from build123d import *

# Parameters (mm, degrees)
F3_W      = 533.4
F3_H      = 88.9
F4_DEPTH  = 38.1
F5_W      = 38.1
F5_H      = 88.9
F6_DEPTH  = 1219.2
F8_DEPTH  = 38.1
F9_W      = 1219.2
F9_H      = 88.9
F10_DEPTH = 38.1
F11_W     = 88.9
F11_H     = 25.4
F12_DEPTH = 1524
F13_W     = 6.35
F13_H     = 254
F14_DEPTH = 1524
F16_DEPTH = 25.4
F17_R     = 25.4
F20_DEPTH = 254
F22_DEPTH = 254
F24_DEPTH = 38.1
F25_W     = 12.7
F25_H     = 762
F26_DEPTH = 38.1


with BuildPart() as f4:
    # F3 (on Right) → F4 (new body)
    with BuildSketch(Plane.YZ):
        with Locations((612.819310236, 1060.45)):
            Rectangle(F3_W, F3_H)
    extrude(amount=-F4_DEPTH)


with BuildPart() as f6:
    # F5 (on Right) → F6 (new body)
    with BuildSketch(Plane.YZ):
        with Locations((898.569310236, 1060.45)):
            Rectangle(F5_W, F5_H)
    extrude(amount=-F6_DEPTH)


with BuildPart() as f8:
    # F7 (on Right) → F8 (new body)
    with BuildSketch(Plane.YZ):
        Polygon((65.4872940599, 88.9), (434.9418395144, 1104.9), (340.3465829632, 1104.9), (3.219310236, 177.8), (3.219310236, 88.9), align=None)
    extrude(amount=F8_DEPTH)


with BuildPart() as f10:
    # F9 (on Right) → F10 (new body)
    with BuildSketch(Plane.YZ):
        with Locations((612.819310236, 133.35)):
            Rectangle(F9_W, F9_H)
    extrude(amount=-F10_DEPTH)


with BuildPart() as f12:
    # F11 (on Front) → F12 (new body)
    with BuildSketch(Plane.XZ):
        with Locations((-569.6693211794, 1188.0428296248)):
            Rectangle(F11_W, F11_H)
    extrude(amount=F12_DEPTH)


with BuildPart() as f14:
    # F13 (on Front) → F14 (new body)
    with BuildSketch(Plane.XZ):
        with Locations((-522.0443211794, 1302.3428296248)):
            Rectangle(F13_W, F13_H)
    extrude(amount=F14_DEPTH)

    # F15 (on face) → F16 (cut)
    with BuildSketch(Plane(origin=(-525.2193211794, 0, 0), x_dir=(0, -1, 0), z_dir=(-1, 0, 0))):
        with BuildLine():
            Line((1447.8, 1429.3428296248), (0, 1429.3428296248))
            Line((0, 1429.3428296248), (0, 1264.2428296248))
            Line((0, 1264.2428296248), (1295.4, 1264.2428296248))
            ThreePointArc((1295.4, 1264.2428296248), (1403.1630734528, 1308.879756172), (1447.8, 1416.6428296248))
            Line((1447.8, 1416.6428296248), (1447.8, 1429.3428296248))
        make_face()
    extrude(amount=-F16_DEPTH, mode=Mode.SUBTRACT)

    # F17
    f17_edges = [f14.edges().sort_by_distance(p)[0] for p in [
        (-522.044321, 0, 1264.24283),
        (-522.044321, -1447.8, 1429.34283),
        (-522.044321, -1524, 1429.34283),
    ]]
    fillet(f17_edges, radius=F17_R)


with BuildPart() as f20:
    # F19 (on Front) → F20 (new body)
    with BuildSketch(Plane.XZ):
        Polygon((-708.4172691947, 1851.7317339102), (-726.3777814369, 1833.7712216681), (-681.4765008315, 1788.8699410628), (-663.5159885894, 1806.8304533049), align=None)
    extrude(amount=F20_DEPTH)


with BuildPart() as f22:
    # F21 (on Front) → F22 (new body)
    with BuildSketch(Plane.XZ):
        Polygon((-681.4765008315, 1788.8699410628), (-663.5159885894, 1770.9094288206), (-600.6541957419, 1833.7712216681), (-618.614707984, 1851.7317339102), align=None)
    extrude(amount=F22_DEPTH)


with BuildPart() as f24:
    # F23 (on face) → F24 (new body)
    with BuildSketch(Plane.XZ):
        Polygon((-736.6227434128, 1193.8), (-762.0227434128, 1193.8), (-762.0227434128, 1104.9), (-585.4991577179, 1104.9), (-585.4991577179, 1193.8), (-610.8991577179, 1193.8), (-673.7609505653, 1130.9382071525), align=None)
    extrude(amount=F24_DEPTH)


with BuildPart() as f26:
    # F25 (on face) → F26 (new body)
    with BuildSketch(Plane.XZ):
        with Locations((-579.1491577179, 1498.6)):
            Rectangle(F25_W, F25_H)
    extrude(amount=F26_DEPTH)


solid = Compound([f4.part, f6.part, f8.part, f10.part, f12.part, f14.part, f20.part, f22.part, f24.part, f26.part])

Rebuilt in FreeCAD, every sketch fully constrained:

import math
import FreeCAD as App
import Part
import Sketcher
from FreeCAD import Vector
Q = App.Units.Quantity


def edges_at(feature, points):
    """Names of the edges that pass closest to the given points."""
    edges = feature.Shape.Edges
    near = lambda p: min(range(len(edges)), key=lambda i: edges[i].distToShape(Part.Vertex(*p))[0])
    return sorted({f"Edge{near(p) + 1}" for p in points})

doc = App.newDocument("Part")
body = doc.addObject("PartDesign::Body", "Body")

# Sketch on YZ plane
sketch1 = body.newObject("Sketcher::SketchObject", "Sketch")
sketch1.AttachmentSupport = (doc.getObject("YZ_Plane"), [""])
sketch1.MapMode = "FlatFace"
sketch1.addGeometry(Part.LineSegment(Vector(346, 1105, 0), Vector(346, 1016, 0)), False)
sketch1.addGeometry(Part.LineSegment(Vector(346, 1016, 0), Vector(880, 1016, 0)), False)
sketch1.addGeometry(Part.LineSegment(Vector(880, 1016, 0), Vector(880, 1105, 0)), False)
sketch1.addGeometry(Part.LineSegment(Vector(880, 1105, 0), Vector(346, 1105, 0)), False)
sketch1.addConstraint(Sketcher.Constraint("Coincident", 0, 2, 1, 1))
sketch1.addConstraint(Sketcher.Constraint("Coincident", 1, 2, 2, 1))
sketch1.addConstraint(Sketcher.Constraint("Coincident", 2, 2, 3, 1))
sketch1.addConstraint(Sketcher.Constraint("Coincident", 3, 2, 0, 1))
sketch1.addConstraint(Sketcher.Constraint("Vertical", 0))
sketch1.addConstraint(Sketcher.Constraint("Horizontal", 1))
sketch1.addConstraint(Sketcher.Constraint("Vertical", 2))
sketch1.addConstraint(Sketcher.Constraint("Horizontal", 3))
sketch1.addConstraint(Sketcher.Constraint("DistanceX", 1, 1, 1, 2, Q("21 in")))
sketch1.addConstraint(Sketcher.Constraint("DistanceY", 0, 2, 0, 1, Q("3.5 in")))
sketch1.addConstraint(Sketcher.Constraint("DistanceY", -1, 1, 0, 2, Q("40 in")))
sketch1.addConstraint(Sketcher.Constraint("DistanceX", -1, 1, 0, 2, 346.11931))
pad1 = body.newObject("PartDesign::Pad", "Pad")
pad1.Profile = sketch1
pad1.Length = Q("1.5 in")
pad1.Reversed = True
body2 = doc.addObject("PartDesign::Body", "Body001")

# Sketch on YZ plane
sketch2 = body2.newObject("Sketcher::SketchObject", "Sketch001")
sketch2.AttachmentSupport = (doc.getObject("YZ_Plane001"), [""])
sketch2.MapMode = "FlatFace"
sketch2.addGeometry(Part.LineSegment(Vector(880, 1105, 0), Vector(880, 1016, 0)), False)
sketch2.addGeometry(Part.LineSegment(Vector(880, 1016, 0), Vector(918, 1016, 0)), False)
sketch2.addGeometry(Part.LineSegment(Vector(918, 1016, 0), Vector(918, 1105, 0)), False)
sketch2.addGeometry(Part.LineSegment(Vector(918, 1105, 0), Vector(880, 1105, 0)), False)
sketch2.addConstraint(Sketcher.Constraint("Coincident", 0, 2, 1, 1))
sketch2.addConstraint(Sketcher.Constraint("Coincident", 1, 2, 2, 1))
sketch2.addConstraint(Sketcher.Constraint("Coincident", 2, 2, 3, 1))
sketch2.addConstraint(Sketcher.Constraint("Coincident", 3, 2, 0, 1))
sketch2.addConstraint(Sketcher.Constraint("Vertical", 0))
sketch2.addConstraint(Sketcher.Constraint("Horizontal", 1))
sketch2.addConstraint(Sketcher.Constraint("Vertical", 2))
sketch2.addConstraint(Sketcher.Constraint("Horizontal", 3))
sketch2.addConstraint(Sketcher.Constraint("DistanceX", 1, 1, 1, 2, Q("1.5 in")))
sketch2.addConstraint(Sketcher.Constraint("DistanceY", 0, 2, 0, 1, Q("3.5 in")))
sketch2.addConstraint(Sketcher.Constraint("DistanceY", -1, 1, 0, 2, Q("40 in")))
sketch2.addConstraint(Sketcher.Constraint("DistanceX", -1, 1, 0, 2, 879.51931))
pad2 = body2.newObject("PartDesign::Pad", "Pad001")
pad2.Profile = sketch2
pad2.Length = Q("48 in")
pad2.Reversed = True
body3 = doc.addObject("PartDesign::Body", "Body002")

# Sketch on YZ plane
sketch3 = body3.newObject("Sketcher::SketchObject", "Sketch002")
sketch3.AttachmentSupport = (doc.getObject("YZ_Plane002"), [""])
sketch3.MapMode = "FlatFace"
sketch3.addGeometry(Part.LineSegment(Vector(65, 89, 0), Vector(435, 1105, 0)), False)
sketch3.addGeometry(Part.LineSegment(Vector(435, 1105, 0), Vector(340, 1105, 0)), False)
sketch3.addGeometry(Part.LineSegment(Vector(340, 1105, 0), Vector(3, 178, 0)), False)
sketch3.addGeometry(Part.LineSegment(Vector(3, 178, 0), Vector(3, 89, 0)), False)
sketch3.addGeometry(Part.LineSegment(Vector(3, 89, 0), Vector(65, 89, 0)), False)
sketch3.addConstraint(Sketcher.Constraint("Coincident", 0, 2, 1, 1))
sketch3.addConstraint(Sketcher.Constraint("Coincident", 1, 2, 2, 1))
sketch3.addConstraint(Sketcher.Constraint("Coincident", 2, 2, 3, 1))
sketch3.addConstraint(Sketcher.Constraint("Coincident", 3, 2, 4, 1))
sketch3.addConstraint(Sketcher.Constraint("Coincident", 4, 2, 0, 1))
sketch3.addConstraint(Sketcher.Constraint("Horizontal", 1))
sketch3.addConstraint(Sketcher.Constraint("Vertical", 3))
sketch3.addConstraint(Sketcher.Constraint("Horizontal", 4))
sketch3.addConstraint(Sketcher.Constraint("Parallel", 0, 2))
sketch3.addConstraint(Sketcher.Constraint("DistanceY", 3, 2, 3, 1, Q("3.5 in")))
sketch3.addConstraint(Sketcher.Constraint("DistanceY", -1, 1, 2, 2, Q("7 in")))
sketch3.addConstraint(Sketcher.Constraint("DistanceY", 3, 2, 1, 2, Q("40 in")))
sketch3.addConstraint(Sketcher.Constraint("Distance", 2, 986.49339))
sketch3.addConstraint(Sketcher.Constraint("DistanceX", 1, 2, 1, 1, 94.595257))
sketch3.addConstraint(Sketcher.Constraint("DistanceX", -1, 1, 0, 2, 434.94184))
pad3 = body3.newObject("PartDesign::Pad", "Pad002")
pad3.Profile = sketch3
pad3.Length = Q("1.5 in")
body4 = doc.addObject("PartDesign::Body", "Body003")

# Sketch on YZ plane
sketch4 = body4.newObject("Sketcher::SketchObject", "Sketch003")
sketch4.AttachmentSupport = (doc.getObject("YZ_Plane003"), [""])
sketch4.MapMode = "FlatFace"
sketch4.addGeometry(Part.LineSegment(Vector(3, 178, 0), Vector(3, 89, 0)), False)
sketch4.addGeometry(Part.LineSegment(Vector(3, 89, 0), Vector(1222, 89, 0)), False)
sketch4.addGeometry(Part.LineSegment(Vector(1222, 89, 0), Vector(1222, 178, 0)), False)
sketch4.addGeometry(Part.LineSegment(Vector(1222, 178, 0), Vector(3, 178, 0)), False)
sketch4.addConstraint(Sketcher.Constraint("Coincident", 0, 2, 1, 1))
sketch4.addConstraint(Sketcher.Constraint("Coincident", 1, 2, 2, 1))
sketch4.addConstraint(Sketcher.Constraint("Coincident", 2, 2, 3, 1))
sketch4.addConstraint(Sketcher.Constraint("Coincident", 3, 2, 0, 1))
sketch4.addConstraint(Sketcher.Constraint("Vertical", 0))
sketch4.addConstraint(Sketcher.Constraint("Horizontal", 1))
sketch4.addConstraint(Sketcher.Constraint("Vertical", 2))
sketch4.addConstraint(Sketcher.Constraint("Horizontal", 3))
sketch4.addConstraint(Sketcher.Constraint("DistanceX", 1, 1, 1, 2, Q("48 in")))
sketch4.addConstraint(Sketcher.Constraint("DistanceY", 0, 2, 0, 1, Q("3.5 in")))
sketch4.addConstraint(Sketcher.Constraint("DistanceY", -1, 1, 2, 2, Q("7 in")))
sketch4.addConstraint(Sketcher.Constraint("DistanceX", -1, 1, 0, 2, 3.21931))
pad4 = body4.newObject("PartDesign::Pad", "Pad003")
pad4.Profile = sketch4
pad4.Length = Q("1.5 in")
pad4.Reversed = True
body5 = doc.addObject("PartDesign::Body", "Body004")

# Sketch on XZ plane
sketch5 = body5.newObject("Sketcher::SketchObject", "Sketch004")
sketch5.AttachmentSupport = (doc.getObject("XZ_Plane004"), [""])
sketch5.MapMode = "FlatFace"
sketch5.addGeometry(Part.LineSegment(Vector(-614, 1201, 0), Vector(-614, 1175, 0)), False)
sketch5.addGeometry(Part.LineSegment(Vector(-614, 1175, 0), Vector(-525, 1175, 0)), False)
sketch5.addGeometry(Part.LineSegment(Vector(-525, 1175, 0), Vector(-525, 1201, 0)), False)
sketch5.addGeometry(Part.LineSegment(Vector(-525, 1201, 0), Vector(-614, 1201, 0)), False)
sketch5.addConstraint(Sketcher.Constraint("Coincident", 0, 2, 1, 1))
sketch5.addConstraint(Sketcher.Constraint("Coincident", 1, 2, 2, 1))
sketch5.addConstraint(Sketcher.Constraint("Coincident", 2, 2, 3, 1))
sketch5.addConstraint(Sketcher.Constraint("Coincident", 3, 2, 0, 1))
sketch5.addConstraint(Sketcher.Constraint("Vertical", 0))
sketch5.addConstraint(Sketcher.Constraint("Horizontal", 1))
sketch5.addConstraint(Sketcher.Constraint("Vertical", 2))
sketch5.addConstraint(Sketcher.Constraint("Horizontal", 3))
sketch5.addConstraint(Sketcher.Constraint("DistanceY", 0, 2, 0, 1, Q("1 in")))
sketch5.addConstraint(Sketcher.Constraint("DistanceX", 1, 1, 1, 2, Q("3.5 in")))
sketch5.addConstraint(Sketcher.Constraint("DistanceX", 0, 2, -1, 1, 614.119321))
sketch5.addConstraint(Sketcher.Constraint("DistanceY", -1, 1, 0, 2, 1175.34283))
pad5 = body5.newObject("PartDesign::Pad", "Pad004")
pad5.Profile = sketch5
pad5.Length = Q("60 in")
body6 = doc.addObject("PartDesign::Body", "Body005")

# Sketch on XZ plane
sketch6 = body6.newObject("Sketcher::SketchObject", "Sketch005")
sketch6.AttachmentSupport = (doc.getObject("XZ_Plane005"), [""])
sketch6.MapMode = "FlatFace"
sketch6.addGeometry(Part.LineSegment(Vector(-525, 1429, 0), Vector(-525, 1175, 0)), False)
sketch6.addGeometry(Part.LineSegment(Vector(-525, 1175, 0), Vector(-519, 1175, 0)), False)
sketch6.addGeometry(Part.LineSegment(Vector(-519, 1175, 0), Vector(-519, 1429, 0)), False)
sketch6.addGeometry(Part.LineSegment(Vector(-519, 1429, 0), Vector(-525, 1429, 0)), False)
sketch6.addConstraint(Sketcher.Constraint("Coincident", 0, 2, 1, 1))
sketch6.addConstraint(Sketcher.Constraint("Coincident", 1, 2, 2, 1))
sketch6.addConstraint(Sketcher.Constraint("Coincident", 2, 2, 3, 1))
sketch6.addConstraint(Sketcher.Constraint("Coincident", 3, 2, 0, 1))
sketch6.addConstraint(Sketcher.Constraint("Vertical", 0))
sketch6.addConstraint(Sketcher.Constraint("Horizontal", 1))
sketch6.addConstraint(Sketcher.Constraint("Vertical", 2))
sketch6.addConstraint(Sketcher.Constraint("Horizontal", 3))
sketch6.addConstraint(Sketcher.Constraint("DistanceY", 0, 2, 0, 1, Q("10 in")))
sketch6.addConstraint(Sketcher.Constraint("DistanceX", 1, 1, 1, 2, Q("0.25 in")))
sketch6.addConstraint(Sketcher.Constraint("DistanceX", 0, 2, -1, 1, 525.219321))
sketch6.addConstraint(Sketcher.Constraint("DistanceY", -1, 1, 0, 2, 1175.34283))
pad6 = body6.newObject("PartDesign::Pad", "Pad005")
pad6.Profile = sketch6
pad6.Length = Q("60 in")

# Sketch on YZ plane
sketch7 = body6.newObject("Sketcher::SketchObject", "Sketch006")
sketch7.AttachmentSupport = (doc.getObject("YZ_Plane005"), [""])
sketch7.MapMode = "FlatFace"
sketch7.AttachmentOffset = App.Placement(Vector(0, 0, -525.219321), App.Rotation())
sketch7.addGeometry(Part.LineSegment(Vector(-1448, 1429, 0), Vector(0, 1429, 0)), False)
sketch7.addGeometry(Part.LineSegment(Vector(0, 1429, 0), Vector(0, 1264, 0)), False)
sketch7.addGeometry(Part.LineSegment(Vector(0, 1264, 0), Vector(-1295, 1264, 0)), False)
sketch7.addGeometry(Part.ArcOfCircle(Part.Circle(Vector(-1295, 1417, 0), Vector(0, 0, 1), 152), math.radians(180), math.radians(270)), False)
sketch7.addGeometry(Part.LineSegment(Vector(-1448, 1417, 0), Vector(-1448, 1429, 0)), False)
sketch7.addConstraint(Sketcher.Constraint("Coincident", 0, 2, 1, 1))
sketch7.addConstraint(Sketcher.Constraint("Coincident", 1, 2, 2, 1))
sketch7.addConstraint(Sketcher.Constraint("Tangent", 2, 2, 3, 2))
sketch7.addConstraint(Sketcher.Constraint("Tangent", 3, 1, 4, 1))
sketch7.addConstraint(Sketcher.Constraint("Coincident", 4, 2, 0, 1))
sketch7.addConstraint(Sketcher.Constraint("Horizontal", 0))
sketch7.addConstraint(Sketcher.Constraint("Vertical", 1))
sketch7.addConstraint(Sketcher.Constraint("Horizontal", 2))
sketch7.addConstraint(Sketcher.Constraint("Vertical", 4))
sketch7.addConstraint(Sketcher.Constraint("PointOnObject", 0, 2, -2))
sketch7.addConstraint(Sketcher.Constraint("Radius", 3, Q("6 in")))
sketch7.addConstraint(Sketcher.Constraint("DistanceX", 0, 1, 0, 2, Q("57 in")))
sketch7.addConstraint(Sketcher.Constraint("DistanceY", 1, 2, 1, 1, Q("6.5 in")))
sketch7.addConstraint(Sketcher.Constraint("DistanceY", -1, 1, 3, 3, 1416.64283))
pocket1 = body6.newObject("PartDesign::Pocket", "Pocket")
pocket1.Profile = sketch7
pocket1.Length = Q("1 in")
pocket1.Reversed = True
doc.recompute()

fillet = body6.newObject("PartDesign::Fillet", "Fillet")
fillet.Base = (pocket1, edges_at(pocket1, [(-522.044, 0, 1264.243), (-522.044, -1447.8, 1429.343), (-522.044, -1524, 1429.343)]))
fillet.Radius = Q("1 in")
body7 = doc.addObject("PartDesign::Body", "Body006")

# Sketch on XZ plane
sketch8 = body7.newObject("Sketcher::SketchObject", "Sketch007")
sketch8.AttachmentSupport = (doc.getObject("XZ_Plane006"), [""])
sketch8.MapMode = "FlatFace"
sketch8.addGeometry(Part.LineSegment(Vector(-708, 1852, 0), Vector(-726, 1834, 0)), False)
sketch8.addGeometry(Part.LineSegment(Vector(-726, 1834, 0), Vector(-681, 1789, 0)), False)
sketch8.addGeometry(Part.LineSegment(Vector(-681, 1789, 0), Vector(-664, 1807, 0)), False)
sketch8.addGeometry(Part.LineSegment(Vector(-664, 1807, 0), Vector(-708, 1852, 0)), False)
sketch8.addConstraint(Sketcher.Constraint("Coincident", 0, 2, 1, 1))
sketch8.addConstraint(Sketcher.Constraint("Coincident", 1, 2, 2, 1))
sketch8.addConstraint(Sketcher.Constraint("Coincident", 2, 2, 3, 1))
sketch8.addConstraint(Sketcher.Constraint("Coincident", 3, 2, 0, 1))
sketch8.addConstraint(Sketcher.Constraint("Perpendicular", 0, 1))
sketch8.addConstraint(Sketcher.Constraint("Perpendicular", 1, 2))
sketch8.addConstraint(Sketcher.Constraint("Perpendicular", 2, 3))
sketch8.addConstraint(Sketcher.Constraint("Distance", 0, Q("1 in")))
sketch8.addConstraint(Sketcher.Constraint("Angle", 0, Q("-135 deg")))
sketch8.addConstraint(Sketcher.Constraint("Distance", 1, Q("2.5 in")))
sketch8.addConstraint(Sketcher.Constraint("DistanceX", 1, 2, -1, 1, 681.476501))
sketch8.addConstraint(Sketcher.Constraint("DistanceY", -1, 1, 0, 2, 1833.771222))
pad7 = body7.newObject("PartDesign::Pad", "Pad006")
pad7.Profile = sketch8
pad7.Length = Q("10 in")
body8 = doc.addObject("PartDesign::Body", "Body007")

# Sketch on XZ plane
sketch9 = body8.newObject("Sketcher::SketchObject", "Sketch008")
sketch9.AttachmentSupport = (doc.getObject("XZ_Plane007"), [""])
sketch9.MapMode = "FlatFace"
sketch9.addGeometry(Part.LineSegment(Vector(-681, 1789, 0), Vector(-664, 1771, 0)), False)
sketch9.addGeometry(Part.LineSegment(Vector(-664, 1771, 0), Vector(-601, 1834, 0)), False)
sketch9.addGeometry(Part.LineSegment(Vector(-601, 1834, 0), Vector(-619, 1852, 0)), False)
sketch9.addGeometry(Part.LineSegment(Vector(-619, 1852, 0), Vector(-681, 1789, 0)), False)
sketch9.addConstraint(Sketcher.Constraint("Coincident", 0, 2, 1, 1))
sketch9.addConstraint(Sketcher.Constraint("Coincident", 1, 2, 2, 1))
sketch9.addConstraint(Sketcher.Constraint("Coincident", 2, 2, 3, 1))
sketch9.addConstraint(Sketcher.Constraint("Coincident", 3, 2, 0, 1))
sketch9.addConstraint(Sketcher.Constraint("Perpendicular", 0, 1))
sketch9.addConstraint(Sketcher.Constraint("Perpendicular", 1, 2))
sketch9.addConstraint(Sketcher.Constraint("Perpendicular", 2, 3))
sketch9.addConstraint(Sketcher.Constraint("Distance", 0, Q("1 in")))
sketch9.addConstraint(Sketcher.Constraint("Angle", 0, Q("-45 deg")))
sketch9.addConstraint(Sketcher.Constraint("Distance", 1, Q("3.5 in")))
sketch9.addConstraint(Sketcher.Constraint("DistanceX", 3, 2, -1, 1, 681.476501))
sketch9.addConstraint(Sketcher.Constraint("DistanceY", -1, 1, 0, 2, 1770.909429))
pad8 = body8.newObject("PartDesign::Pad", "Pad007")
pad8.Profile = sketch9
pad8.Length = Q("10 in")
body9 = doc.addObject("PartDesign::Body", "Body008")

# Sketch on XZ plane
sketch10 = body9.newObject("Sketcher::SketchObject", "Sketch009")
sketch10.AttachmentSupport = (doc.getObject("XZ_Plane008"), [""])
sketch10.MapMode = "FlatFace"
sketch10.addGeometry(Part.LineSegment(Vector(-737, 1194, 0), Vector(-762, 1194, 0)), False)
sketch10.addGeometry(Part.LineSegment(Vector(-762, 1194, 0), Vector(-762, 1105, 0)), False)
sketch10.addGeometry(Part.LineSegment(Vector(-762, 1105, 0), Vector(-585, 1105, 0)), False)
sketch10.addGeometry(Part.LineSegment(Vector(-585, 1105, 0), Vector(-585, 1194, 0)), False)
sketch10.addGeometry(Part.LineSegment(Vector(-585, 1194, 0), Vector(-611, 1194, 0)), False)
sketch10.addGeometry(Part.LineSegment(Vector(-611, 1194, 0), Vector(-674, 1131, 0)), False)
sketch10.addGeometry(Part.LineSegment(Vector(-674, 1131, 0), Vector(-737, 1194, 0)), False)
sketch10.addConstraint(Sketcher.Constraint("Coincident", 0, 2, 1, 1))
sketch10.addConstraint(Sketcher.Constraint("Coincident", 1, 2, 2, 1))
sketch10.addConstraint(Sketcher.Constraint("Coincident", 2, 2, 3, 1))
sketch10.addConstraint(Sketcher.Constraint("Coincident", 3, 2, 4, 1))
sketch10.addConstraint(Sketcher.Constraint("Coincident", 4, 2, 5, 1))
sketch10.addConstraint(Sketcher.Constraint("Coincident", 5, 2, 6, 1))
sketch10.addConstraint(Sketcher.Constraint("Coincident", 6, 2, 0, 1))
sketch10.addConstraint(Sketcher.Constraint("Horizontal", 0))
sketch10.addConstraint(Sketcher.Constraint("Vertical", 1))
sketch10.addConstraint(Sketcher.Constraint("Horizontal", 2))
sketch10.addConstraint(Sketcher.Constraint("Vertical", 3))
sketch10.addConstraint(Sketcher.Constraint("Horizontal", 4))
sketch10.addConstraint(Sketcher.Constraint("Perpendicular", 5, 6))
sketch10.addConstraint(Sketcher.Constraint("Horizontal", 0, 2, 3, 2))
sketch10.addConstraint(Sketcher.Constraint("Equal", 0, 4))
sketch10.addConstraint(Sketcher.Constraint("Equal", 5, 6))
sketch10.addConstraint(Sketcher.Constraint("DistanceX", 0, 2, 0, 1, Q("1 in")))
sketch10.addConstraint(Sketcher.Constraint("DistanceY", 1, 2, 1, 1, Q("3.5 in")))
sketch10.addConstraint(Sketcher.Constraint("DistanceY", -1, 1, 0, 2, Q("47 in")))
sketch10.addConstraint(Sketcher.Constraint("Distance", 5, Q("3.5 in")))
sketch10.addConstraint(Sketcher.Constraint("DistanceX", 5, 2, -1, 1, 673.760951))
pad9 = body9.newObject("PartDesign::Pad", "Pad008")
pad9.Profile = sketch10
pad9.Length = Q("1.5 in")
body10 = doc.addObject("PartDesign::Body", "Body009")

# Sketch on XZ plane
sketch11 = body10.newObject("Sketcher::SketchObject", "Sketch010")
sketch11.AttachmentSupport = (doc.getObject("XZ_Plane009"), [""])
sketch11.MapMode = "FlatFace"
sketch11.addGeometry(Part.LineSegment(Vector(-585, 1880, 0), Vector(-585, 1118, 0)), False)
sketch11.addGeometry(Part.LineSegment(Vector(-585, 1118, 0), Vector(-573, 1118, 0)), False)
sketch11.addGeometry(Part.LineSegment(Vector(-573, 1118, 0), Vector(-573, 1880, 0)), False)
sketch11.addGeometry(Part.LineSegment(Vector(-573, 1880, 0), Vector(-585, 1880, 0)), False)
sketch11.addConstraint(Sketcher.Constraint("Coincident", 0, 2, 1, 1))
sketch11.addConstraint(Sketcher.Constraint("Coincident", 1, 2, 2, 1))
sketch11.addConstraint(Sketcher.Constraint("Coincident", 2, 2, 3, 1))
sketch11.addConstraint(Sketcher.Constraint("Coincident", 3, 2, 0, 1))
sketch11.addConstraint(Sketcher.Constraint("Vertical", 0))
sketch11.addConstraint(Sketcher.Constraint("Horizontal", 1))
sketch11.addConstraint(Sketcher.Constraint("Vertical", 2))
sketch11.addConstraint(Sketcher.Constraint("Horizontal", 3))
sketch11.addConstraint(Sketcher.Constraint("DistanceY", 0, 2, 0, 1, Q("30 in")))
sketch11.addConstraint(Sketcher.Constraint("DistanceX", 1, 1, 1, 2, Q("0.5 in")))
sketch11.addConstraint(Sketcher.Constraint("DistanceY", -1, 1, 0, 2, Q("44 in")))
sketch11.addConstraint(Sketcher.Constraint("DistanceX", 0, 2, -1, 1, 585.499158))
pad10 = body10.newObject("PartDesign::Pad", "Pad009")
pad10.Profile = sketch11
pad10.Length = Q("1.5 in")

doc.recompute()
